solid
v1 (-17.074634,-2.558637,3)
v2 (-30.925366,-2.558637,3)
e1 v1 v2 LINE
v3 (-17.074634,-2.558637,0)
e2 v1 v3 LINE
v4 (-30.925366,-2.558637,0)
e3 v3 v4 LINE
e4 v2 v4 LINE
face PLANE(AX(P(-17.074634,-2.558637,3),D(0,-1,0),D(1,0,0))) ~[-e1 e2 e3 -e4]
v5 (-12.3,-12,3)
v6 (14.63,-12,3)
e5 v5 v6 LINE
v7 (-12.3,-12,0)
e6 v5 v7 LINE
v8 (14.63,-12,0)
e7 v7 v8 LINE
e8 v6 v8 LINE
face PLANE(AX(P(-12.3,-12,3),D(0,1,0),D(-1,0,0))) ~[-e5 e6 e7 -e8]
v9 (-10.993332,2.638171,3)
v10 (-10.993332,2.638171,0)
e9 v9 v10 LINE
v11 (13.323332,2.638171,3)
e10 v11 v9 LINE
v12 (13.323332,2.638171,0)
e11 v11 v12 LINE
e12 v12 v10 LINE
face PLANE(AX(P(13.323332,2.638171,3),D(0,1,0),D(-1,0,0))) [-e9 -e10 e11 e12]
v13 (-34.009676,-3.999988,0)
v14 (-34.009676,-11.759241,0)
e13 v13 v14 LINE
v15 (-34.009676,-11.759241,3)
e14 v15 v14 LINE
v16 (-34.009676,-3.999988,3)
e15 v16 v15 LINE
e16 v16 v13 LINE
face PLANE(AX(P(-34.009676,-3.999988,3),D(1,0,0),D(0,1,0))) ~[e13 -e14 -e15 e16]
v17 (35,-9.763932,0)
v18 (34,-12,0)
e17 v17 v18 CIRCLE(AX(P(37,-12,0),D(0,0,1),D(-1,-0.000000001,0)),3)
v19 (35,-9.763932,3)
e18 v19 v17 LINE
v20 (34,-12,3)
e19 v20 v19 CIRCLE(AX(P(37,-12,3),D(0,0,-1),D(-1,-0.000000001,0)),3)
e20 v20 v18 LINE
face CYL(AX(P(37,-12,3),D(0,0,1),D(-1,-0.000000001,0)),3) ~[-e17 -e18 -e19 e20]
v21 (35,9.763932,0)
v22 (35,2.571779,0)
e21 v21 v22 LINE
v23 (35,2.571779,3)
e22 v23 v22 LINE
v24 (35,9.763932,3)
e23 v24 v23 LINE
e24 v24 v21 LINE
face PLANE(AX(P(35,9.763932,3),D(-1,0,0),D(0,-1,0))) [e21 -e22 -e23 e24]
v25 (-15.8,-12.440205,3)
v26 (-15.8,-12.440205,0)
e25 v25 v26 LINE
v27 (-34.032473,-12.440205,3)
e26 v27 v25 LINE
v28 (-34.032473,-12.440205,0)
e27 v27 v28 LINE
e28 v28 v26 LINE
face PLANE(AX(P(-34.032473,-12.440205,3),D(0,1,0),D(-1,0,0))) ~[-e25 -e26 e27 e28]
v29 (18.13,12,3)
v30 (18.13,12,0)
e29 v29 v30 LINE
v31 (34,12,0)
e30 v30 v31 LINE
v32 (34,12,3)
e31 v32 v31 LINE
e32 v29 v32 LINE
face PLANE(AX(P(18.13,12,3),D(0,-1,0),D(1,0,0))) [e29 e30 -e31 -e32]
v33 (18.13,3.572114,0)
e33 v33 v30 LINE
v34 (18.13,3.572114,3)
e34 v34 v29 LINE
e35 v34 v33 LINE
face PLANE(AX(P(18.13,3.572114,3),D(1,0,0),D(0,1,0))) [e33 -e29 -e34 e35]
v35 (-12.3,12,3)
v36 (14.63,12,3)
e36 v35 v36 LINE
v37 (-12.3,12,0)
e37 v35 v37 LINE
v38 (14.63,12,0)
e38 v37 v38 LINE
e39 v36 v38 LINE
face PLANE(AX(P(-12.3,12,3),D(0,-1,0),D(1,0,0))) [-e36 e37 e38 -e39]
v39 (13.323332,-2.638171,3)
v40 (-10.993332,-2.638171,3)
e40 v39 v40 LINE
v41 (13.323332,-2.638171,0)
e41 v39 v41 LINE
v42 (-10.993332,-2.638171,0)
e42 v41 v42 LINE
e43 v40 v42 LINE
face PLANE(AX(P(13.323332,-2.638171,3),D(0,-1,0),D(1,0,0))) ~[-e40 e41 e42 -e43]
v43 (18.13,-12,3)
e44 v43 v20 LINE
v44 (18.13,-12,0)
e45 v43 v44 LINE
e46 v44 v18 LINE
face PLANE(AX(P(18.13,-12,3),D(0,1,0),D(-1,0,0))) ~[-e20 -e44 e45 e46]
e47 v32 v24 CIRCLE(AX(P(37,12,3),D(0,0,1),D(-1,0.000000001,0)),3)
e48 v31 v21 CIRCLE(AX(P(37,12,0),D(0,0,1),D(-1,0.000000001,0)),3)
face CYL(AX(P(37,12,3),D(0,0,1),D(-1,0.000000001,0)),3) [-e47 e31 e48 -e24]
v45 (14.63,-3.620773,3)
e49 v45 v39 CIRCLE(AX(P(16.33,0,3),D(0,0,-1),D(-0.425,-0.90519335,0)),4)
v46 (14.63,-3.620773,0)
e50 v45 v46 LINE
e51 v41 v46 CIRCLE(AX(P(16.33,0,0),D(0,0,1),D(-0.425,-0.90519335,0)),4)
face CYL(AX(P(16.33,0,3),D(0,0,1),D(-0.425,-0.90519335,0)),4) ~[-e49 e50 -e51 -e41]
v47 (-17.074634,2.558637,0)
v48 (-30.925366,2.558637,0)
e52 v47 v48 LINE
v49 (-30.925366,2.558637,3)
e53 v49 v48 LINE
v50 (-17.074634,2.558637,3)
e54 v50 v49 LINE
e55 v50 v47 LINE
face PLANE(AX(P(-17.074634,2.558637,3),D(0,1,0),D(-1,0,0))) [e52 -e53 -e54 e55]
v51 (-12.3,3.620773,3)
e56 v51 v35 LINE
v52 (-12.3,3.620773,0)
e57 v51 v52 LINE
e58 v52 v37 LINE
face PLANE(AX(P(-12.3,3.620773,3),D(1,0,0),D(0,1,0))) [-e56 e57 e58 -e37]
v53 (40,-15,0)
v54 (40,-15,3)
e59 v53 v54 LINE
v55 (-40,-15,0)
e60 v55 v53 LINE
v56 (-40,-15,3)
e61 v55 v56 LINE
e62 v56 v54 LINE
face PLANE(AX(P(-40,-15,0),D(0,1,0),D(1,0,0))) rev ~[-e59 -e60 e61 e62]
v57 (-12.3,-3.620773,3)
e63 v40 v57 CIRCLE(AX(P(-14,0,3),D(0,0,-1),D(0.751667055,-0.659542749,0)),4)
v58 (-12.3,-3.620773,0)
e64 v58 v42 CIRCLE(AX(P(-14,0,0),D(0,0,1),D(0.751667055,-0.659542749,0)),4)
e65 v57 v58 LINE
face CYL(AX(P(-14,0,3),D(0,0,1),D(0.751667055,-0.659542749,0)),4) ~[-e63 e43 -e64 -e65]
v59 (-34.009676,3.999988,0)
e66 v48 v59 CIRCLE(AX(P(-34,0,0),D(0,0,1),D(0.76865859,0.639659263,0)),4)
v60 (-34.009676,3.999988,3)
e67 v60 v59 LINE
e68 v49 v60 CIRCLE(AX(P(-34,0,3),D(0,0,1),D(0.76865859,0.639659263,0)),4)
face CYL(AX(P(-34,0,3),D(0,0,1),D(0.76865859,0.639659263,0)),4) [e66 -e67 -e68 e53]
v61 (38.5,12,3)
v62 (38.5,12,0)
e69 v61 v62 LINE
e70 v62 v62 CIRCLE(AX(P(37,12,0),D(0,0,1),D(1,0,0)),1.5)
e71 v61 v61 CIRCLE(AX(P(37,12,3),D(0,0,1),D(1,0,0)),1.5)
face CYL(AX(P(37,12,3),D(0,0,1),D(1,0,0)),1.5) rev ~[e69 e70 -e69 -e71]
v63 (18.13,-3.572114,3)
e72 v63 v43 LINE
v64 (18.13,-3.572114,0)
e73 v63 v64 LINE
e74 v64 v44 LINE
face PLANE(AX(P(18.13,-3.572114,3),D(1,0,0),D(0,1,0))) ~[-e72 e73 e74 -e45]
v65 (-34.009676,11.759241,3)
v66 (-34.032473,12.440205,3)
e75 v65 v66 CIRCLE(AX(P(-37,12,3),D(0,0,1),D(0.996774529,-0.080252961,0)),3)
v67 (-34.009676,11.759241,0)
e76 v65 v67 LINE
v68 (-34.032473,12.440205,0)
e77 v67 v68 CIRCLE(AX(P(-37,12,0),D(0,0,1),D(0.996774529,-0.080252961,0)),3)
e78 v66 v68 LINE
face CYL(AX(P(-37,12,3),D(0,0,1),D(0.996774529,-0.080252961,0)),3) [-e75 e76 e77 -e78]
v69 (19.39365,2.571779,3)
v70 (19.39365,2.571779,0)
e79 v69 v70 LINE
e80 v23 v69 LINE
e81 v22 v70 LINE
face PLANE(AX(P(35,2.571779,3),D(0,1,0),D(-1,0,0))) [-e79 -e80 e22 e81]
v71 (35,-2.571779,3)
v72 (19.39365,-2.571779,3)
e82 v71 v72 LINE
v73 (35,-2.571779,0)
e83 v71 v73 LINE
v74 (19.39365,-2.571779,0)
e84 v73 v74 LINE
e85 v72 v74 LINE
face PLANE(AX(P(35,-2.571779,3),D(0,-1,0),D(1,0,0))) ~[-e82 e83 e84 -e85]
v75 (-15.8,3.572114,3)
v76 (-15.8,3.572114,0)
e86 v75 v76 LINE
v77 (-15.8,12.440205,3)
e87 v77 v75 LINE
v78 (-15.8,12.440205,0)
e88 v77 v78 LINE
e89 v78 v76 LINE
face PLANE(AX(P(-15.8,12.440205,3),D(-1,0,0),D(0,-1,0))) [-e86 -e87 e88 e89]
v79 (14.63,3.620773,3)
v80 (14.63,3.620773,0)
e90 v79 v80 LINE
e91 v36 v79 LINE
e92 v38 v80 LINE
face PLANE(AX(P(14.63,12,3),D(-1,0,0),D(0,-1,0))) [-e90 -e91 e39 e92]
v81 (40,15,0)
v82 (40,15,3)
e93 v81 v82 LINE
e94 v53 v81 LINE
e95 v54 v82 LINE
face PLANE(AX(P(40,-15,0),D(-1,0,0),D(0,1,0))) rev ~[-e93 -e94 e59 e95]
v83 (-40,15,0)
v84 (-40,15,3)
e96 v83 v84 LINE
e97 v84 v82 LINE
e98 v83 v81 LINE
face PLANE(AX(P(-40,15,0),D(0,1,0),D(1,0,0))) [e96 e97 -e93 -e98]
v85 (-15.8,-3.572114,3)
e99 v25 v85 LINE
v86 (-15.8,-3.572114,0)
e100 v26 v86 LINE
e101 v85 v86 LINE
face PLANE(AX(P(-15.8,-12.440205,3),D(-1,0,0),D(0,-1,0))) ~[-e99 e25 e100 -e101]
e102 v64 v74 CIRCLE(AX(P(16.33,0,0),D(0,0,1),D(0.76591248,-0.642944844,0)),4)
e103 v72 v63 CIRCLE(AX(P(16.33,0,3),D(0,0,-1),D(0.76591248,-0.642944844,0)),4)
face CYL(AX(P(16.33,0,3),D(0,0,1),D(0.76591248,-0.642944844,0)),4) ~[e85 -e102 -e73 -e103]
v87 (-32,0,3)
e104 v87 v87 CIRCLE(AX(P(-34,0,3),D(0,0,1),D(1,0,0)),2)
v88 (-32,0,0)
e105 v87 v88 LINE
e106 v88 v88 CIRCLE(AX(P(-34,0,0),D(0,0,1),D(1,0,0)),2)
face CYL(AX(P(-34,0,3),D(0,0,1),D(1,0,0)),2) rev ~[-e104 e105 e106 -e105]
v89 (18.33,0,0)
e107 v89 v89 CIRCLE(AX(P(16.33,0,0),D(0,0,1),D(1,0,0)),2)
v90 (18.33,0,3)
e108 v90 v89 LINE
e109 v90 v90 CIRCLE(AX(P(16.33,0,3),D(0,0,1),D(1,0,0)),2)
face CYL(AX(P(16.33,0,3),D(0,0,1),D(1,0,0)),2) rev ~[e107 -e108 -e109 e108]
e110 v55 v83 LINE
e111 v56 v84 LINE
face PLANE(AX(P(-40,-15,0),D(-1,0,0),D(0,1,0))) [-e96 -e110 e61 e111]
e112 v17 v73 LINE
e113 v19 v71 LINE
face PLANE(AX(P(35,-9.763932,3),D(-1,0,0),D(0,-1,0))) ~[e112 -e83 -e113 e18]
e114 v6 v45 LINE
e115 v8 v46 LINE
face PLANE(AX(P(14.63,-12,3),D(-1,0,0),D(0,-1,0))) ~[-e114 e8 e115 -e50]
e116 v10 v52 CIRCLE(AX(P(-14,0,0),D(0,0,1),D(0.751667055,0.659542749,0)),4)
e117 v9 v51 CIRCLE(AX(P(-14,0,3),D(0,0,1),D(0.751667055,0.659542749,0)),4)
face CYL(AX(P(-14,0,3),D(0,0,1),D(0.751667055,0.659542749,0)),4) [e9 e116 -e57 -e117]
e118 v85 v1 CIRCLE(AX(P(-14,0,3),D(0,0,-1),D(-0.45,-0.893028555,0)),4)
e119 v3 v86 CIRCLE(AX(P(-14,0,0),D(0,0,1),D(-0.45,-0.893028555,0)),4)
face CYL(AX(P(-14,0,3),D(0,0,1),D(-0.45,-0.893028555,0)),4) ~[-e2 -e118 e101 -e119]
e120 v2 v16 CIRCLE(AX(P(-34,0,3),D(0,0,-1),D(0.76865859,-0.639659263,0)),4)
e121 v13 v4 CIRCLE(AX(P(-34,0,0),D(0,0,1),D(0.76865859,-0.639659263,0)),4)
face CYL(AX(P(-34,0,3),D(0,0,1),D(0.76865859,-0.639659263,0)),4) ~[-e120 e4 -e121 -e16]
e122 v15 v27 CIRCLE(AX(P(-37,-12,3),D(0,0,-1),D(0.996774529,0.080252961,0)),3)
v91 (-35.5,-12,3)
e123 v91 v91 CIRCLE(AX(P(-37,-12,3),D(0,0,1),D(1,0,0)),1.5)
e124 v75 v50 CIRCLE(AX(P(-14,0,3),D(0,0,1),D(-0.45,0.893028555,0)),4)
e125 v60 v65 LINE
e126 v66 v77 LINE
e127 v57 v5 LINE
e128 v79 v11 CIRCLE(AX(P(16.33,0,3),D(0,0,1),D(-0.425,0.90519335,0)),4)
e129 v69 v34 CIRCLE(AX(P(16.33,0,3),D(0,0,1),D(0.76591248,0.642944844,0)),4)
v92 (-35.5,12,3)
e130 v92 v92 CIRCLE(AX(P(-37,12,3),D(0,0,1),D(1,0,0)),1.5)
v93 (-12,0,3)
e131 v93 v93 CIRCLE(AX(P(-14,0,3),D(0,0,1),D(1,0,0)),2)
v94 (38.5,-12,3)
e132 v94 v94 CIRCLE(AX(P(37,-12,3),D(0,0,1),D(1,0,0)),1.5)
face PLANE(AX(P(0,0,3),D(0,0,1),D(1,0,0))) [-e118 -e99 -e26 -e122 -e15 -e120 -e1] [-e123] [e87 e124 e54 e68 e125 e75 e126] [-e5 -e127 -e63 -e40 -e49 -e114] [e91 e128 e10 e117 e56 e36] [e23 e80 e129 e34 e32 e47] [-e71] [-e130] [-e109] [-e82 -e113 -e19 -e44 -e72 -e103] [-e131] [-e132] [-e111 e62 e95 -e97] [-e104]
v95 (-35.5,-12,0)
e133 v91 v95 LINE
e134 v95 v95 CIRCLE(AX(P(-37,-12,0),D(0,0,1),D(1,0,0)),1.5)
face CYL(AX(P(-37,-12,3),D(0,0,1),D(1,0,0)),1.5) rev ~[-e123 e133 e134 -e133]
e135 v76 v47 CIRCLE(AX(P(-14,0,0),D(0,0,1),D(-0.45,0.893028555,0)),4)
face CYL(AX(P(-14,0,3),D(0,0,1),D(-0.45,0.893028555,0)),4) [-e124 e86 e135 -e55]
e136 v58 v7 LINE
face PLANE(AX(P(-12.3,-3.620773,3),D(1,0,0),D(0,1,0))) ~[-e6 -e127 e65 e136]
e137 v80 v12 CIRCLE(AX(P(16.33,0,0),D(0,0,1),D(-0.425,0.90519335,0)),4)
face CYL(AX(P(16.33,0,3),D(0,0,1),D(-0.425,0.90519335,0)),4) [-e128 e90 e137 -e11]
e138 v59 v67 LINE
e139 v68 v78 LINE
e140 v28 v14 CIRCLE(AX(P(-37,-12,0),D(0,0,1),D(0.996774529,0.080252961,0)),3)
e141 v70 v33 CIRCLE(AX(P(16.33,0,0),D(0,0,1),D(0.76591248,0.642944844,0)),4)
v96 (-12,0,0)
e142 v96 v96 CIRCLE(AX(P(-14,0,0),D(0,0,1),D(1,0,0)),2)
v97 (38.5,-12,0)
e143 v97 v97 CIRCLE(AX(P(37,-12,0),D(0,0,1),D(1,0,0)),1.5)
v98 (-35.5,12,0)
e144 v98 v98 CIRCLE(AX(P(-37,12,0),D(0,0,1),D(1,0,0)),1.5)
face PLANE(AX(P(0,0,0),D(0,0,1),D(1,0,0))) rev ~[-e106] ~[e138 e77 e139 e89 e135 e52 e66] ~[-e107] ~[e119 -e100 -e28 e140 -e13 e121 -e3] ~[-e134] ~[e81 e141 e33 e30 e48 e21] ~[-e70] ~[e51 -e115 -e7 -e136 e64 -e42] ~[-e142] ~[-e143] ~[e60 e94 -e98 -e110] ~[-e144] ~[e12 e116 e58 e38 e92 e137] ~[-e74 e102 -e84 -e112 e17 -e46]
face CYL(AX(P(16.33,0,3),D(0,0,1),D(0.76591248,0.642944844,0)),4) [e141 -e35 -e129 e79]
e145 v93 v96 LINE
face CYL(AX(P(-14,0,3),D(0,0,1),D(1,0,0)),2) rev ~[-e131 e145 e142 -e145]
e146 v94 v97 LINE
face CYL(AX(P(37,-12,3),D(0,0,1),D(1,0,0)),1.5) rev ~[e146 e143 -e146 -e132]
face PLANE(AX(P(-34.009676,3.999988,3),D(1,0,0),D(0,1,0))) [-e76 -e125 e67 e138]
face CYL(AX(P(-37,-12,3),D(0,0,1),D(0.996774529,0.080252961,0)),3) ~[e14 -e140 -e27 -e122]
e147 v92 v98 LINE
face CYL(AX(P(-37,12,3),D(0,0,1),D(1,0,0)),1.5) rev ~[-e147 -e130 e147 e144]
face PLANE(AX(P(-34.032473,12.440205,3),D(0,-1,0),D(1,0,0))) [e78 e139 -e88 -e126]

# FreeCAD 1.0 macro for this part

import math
import FreeCAD as App
import Part
import Sketcher
from FreeCAD import Vector
Q = App.Units.Quantity


def add_polygon(sketch, points):
    """Adds a closed chain of lines whose ends are joined by coincident constraints."""
    first, n = sketch.GeometryCount, len(points)
    for a, b in zip(points, points[1:] + points[:1]):
        sketch.addGeometry(Part.LineSegment(App.Vector(*a, 0), App.Vector(*b, 0)), False)
    for i in range(n):
        sketch.addConstraint(Sketcher.Constraint("Coincident", first + i, 2, first + (i + 1) % n, 1))

doc = App.newDocument("Part")
body = doc.addObject("PartDesign::Body", "Body")

sketch1 = body.newObject("Sketcher::SketchObject", "Sketch")
sketch1.AttachmentSupport = (doc.getObject("XY_Plane"), [""])
sketch1.MapMode = "FlatFace"
add_polygon(sketch1, [(-40, 15), (-40, -15), (40, -15), (40, 15)])
sketch1.addConstraint([
    Sketcher.Constraint("Vertical", 0),
    Sketcher.Constraint("Horizontal", 1),
    Sketcher.Constraint("Vertical", 2),
    Sketcher.Constraint("Horizontal", 3),
    Sketcher.Constraint("Symmetric", 0, 2, 2, 2, -1, 1),
    Sketcher.Constraint("DistanceX", 1, 1, 1, 2, Q("80 mm")),
    Sketcher.Constraint("DistanceY", 0, 2, 0, 1, Q("30 mm")),
])
pad1 = body.newObject("PartDesign::Pad", "Pad")
pad1.Profile = sketch1
pad1.Length = 3

sketch2 = body.newObject("Sketcher::SketchObject", "Sketch001")
sketch2.AttachmentSupport = (doc.getObject("XY_Plane"), [""])
sketch2.MapMode = "FlatFace"
sketch2.AttachmentOffset = App.Placement(Vector(0, 0, 3), App.Rotation())
sketch2.addGeometry([
    Part.Circle(Vector(37, 12, 0), Vector(0, 0, 1), 1.5),
    Part.Circle(Vector(-37, 12, 0), Vector(0, 0, 1), 1.5),
    Part.Circle(Vector(37, -12, 0), Vector(0, 0, 1), 1.5),
    Part.Circle(Vector(-37, -12, 0), Vector(0, 0, 1), 1.5),
    Part.Circle(Vector(-14, 0, 0), Vector(0, 0, 1), 2),
    Part.Circle(Vector(-34, 0, 0), Vector(0, 0, 1), 2),
    Part.Circle(Vector(16.3, 0, 0), Vector(0, 0, 1), 2),
    Part.LineSegment(Vector(-15.8, 12.4, 0), Vector(-34, 12.4, 0)),
    Part.ArcOfCircle(Part.Circle(Vector(-37, 12, 0), Vector(0, 0, 1), 3), math.radians(-4.6), math.radians(8.44)),
    Part.LineSegment(Vector(-34, 11.8, 0), Vector(-34, 4, 0)),
    Part.ArcOfCircle(Part.Circle(Vector(-34, 0, 0), Vector(0, 0, 1), 4), math.radians(40), math.radians(90)),
    Part.LineSegment(Vector(-30.9, 2.6, 0), Vector(-17.1, 2.6, 0)),
    Part.ArcOfCircle(Part.Circle(Vector(-14, 0, 0), Vector(0, 0, 1), 4), math.radians(117), math.radians(140)),
    Part.LineSegment(Vector(-15.8, 3.6, 0), Vector(-15.8, 12.4, 0)),
    Part.LineSegment(Vector(-11, 2.6, 0), Vector(13.3, 2.6, 0)),
    Part.ArcOfCircle(Part.Circle(Vector(16.3, 0, 0), Vector(0, 0, 1), 4), math.radians(115), math.radians(139)),
    Part.LineSegment(Vector(14.6, 3.6, 0), Vector(14.6, 12, 0)),
    Part.LineSegment(Vector(14.6, 12, 0), Vector(-12.3, 12, 0)),
    Part.LineSegment(Vector(-12.3, 12, 0), Vector(-12.3, 3.6, 0)),
    Part.ArcOfCircle(Part.Circle(Vector(-14, 0, 0), Vector(0, 0, 1), 4), math.radians(41), math.radians(65)),
    Part.LineSegment(Vector(19.4, 2.6, 0), Vector(35, 2.6, 0)),
    Part.LineSegment(Vector(35, 2.6, 0), Vector(35, 9.8, 0)),
    Part.ArcOfCircle(Part.Circle(Vector(37, 12, 0), Vector(0, 0, 1), 3), math.radians(180), math.radians(228)),
    Part.LineSegment(Vector(34, 12, 0), Vector(18.1, 12, 0)),
    Part.LineSegment(Vector(18.1, 12, 0), Vector(18.1, 3.6, 0)),
    Part.ArcOfCircle(Part.Circle(Vector(16.3, 0, 0), Vector(0, 0, 1), 4), math.radians(40), math.radians(63)),
], False)
sketch2.addConstraint([
    Sketcher.Constraint("Coincident", 7, 2, 8, 2),
    Sketcher.Constraint("Coincident", 8, 1, 9, 1),
    Sketcher.Constraint("Coincident", 9, 2, 10, 2),
    Sketcher.Constraint("Coincident", 10, 1, 11, 1),
    Sketcher.Constraint("Coincident", 11, 2, 12, 2),
    Sketcher.Constraint("Coincident", 12, 1, 13, 1),
    Sketcher.Constraint("Coincident", 13, 2, 7, 1),
    Sketcher.Constraint("Coincident", 14, 2, 15, 2),
    Sketcher.Constraint("Coincident", 15, 1, 16, 1),
    Sketcher.Constraint("Coincident", 16, 2, 17, 1),
    Sketcher.Constraint("Coincident", 17, 2, 18, 1),
    Sketcher.Constraint("Coincident", 18, 2, 19, 2),
    Sketcher.Constraint("Coincident", 19, 1, 14, 1),
    Sketcher.Constraint("Coincident", 20, 2, 21, 1),
    Sketcher.Constraint("Coincident", 21, 2, 22, 2),
    Sketcher.Constraint("Coincident", 22, 1, 23, 1),
    Sketcher.Constraint("Coincident", 23, 2, 24, 1),
    Sketcher.Constraint("Coincident", 24, 2, 25, 2),
    Sketcher.Constraint("Coincident", 25, 1, 20, 1),
    Sketcher.Constraint("Horizontal", 7),
    Sketcher.Constraint("Vertical", 9),
    Sketcher.Constraint("Horizontal", 11),
    Sketcher.Constraint("Vertical", 13),
    Sketcher.Constraint("Horizontal", 14),
    Sketcher.Constraint("Vertical", 16),
    Sketcher.Constraint("Horizontal", 17),
    Sketcher.Constraint("Vertical", 18),
    Sketcher.Constraint("Horizontal", 20),
    Sketcher.Constraint("Vertical", 21),
    Sketcher.Constraint("Horizontal", 23),
    Sketcher.Constraint("Vertical", 24),
    Sketcher.Constraint("Coincident", 8, 3, 1, 3),
    Sketcher.Constraint("Coincident", 10, 3, 5, 3),
    Sketcher.Constraint("Coincident", 12, 3, 4, 3),
    Sketcher.Constraint("Coincident", 15, 3, 6, 3),
    Sketcher.Constraint("Coincident", 19, 3, 4, 3),
    Sketcher.Constraint("Coincident", 22, 3, 0, 3),
    Sketcher.Constraint("Coincident", 25, 3, 6, 3),
    Sketcher.Constraint("Equal", 0, 1),
    Sketcher.Constraint("Equal", 1, 2),
    Sketcher.Constraint("Equal", 2, 3),
    Sketcher.Constraint("Equal", 4, 5),
    Sketcher.Constraint("Equal", 5, 6),
    Sketcher.Constraint("Equal", 10, 12),
    Sketcher.Constraint("Equal", 12, 15),
    Sketcher.Constraint("Equal", 15, 19),
    Sketcher.Constraint("Equal", 8, 22),
    Sketcher.Constraint("Equal", 19, 25),
    Sketcher.Constraint("Symmetric", 1, 3, 2, 3, -1, 1),
    Sketcher.Constraint("Symmetric", 0, 3, 3, 3, -1, 1),
    Sketcher.Constraint("Symmetric", 0, 3, 1, 3, -2),
    Sketcher.Constraint("PointOnObject", 4, 3, -1),
    Sketcher.Constraint("PointOnObject", 5, 3, -1),
    Sketcher.Constraint("PointOnObject", 6, 3, -1),
    Sketcher.Constraint("Horizontal", 22, 3, 16, 2),
    Sketcher.Constraint("Horizontal", 15, 1, 18, 2),
    Sketcher.Constraint("Horizontal", 17, 2, 22, 1),
    Sketcher.Constraint("Horizontal", 12, 1, 24, 2),
    Sketcher.Constraint("Diameter", 0, Q("3 mm")),
    Sketcher.Constraint("Diameter", 4, Q("4 mm")),
    Sketcher.Constraint("Radius", 8, Q("3 mm")),
    Sketcher.Constraint("Radius", 10, Q("4 mm")),
    Sketcher.Constraint("DistanceX", -1, 1, 0, 3, Q("37 mm")),
    Sketcher.Constraint("DistanceY", -1, 1, 0, 3, Q("12 mm")),
    Sketcher.Constraint("DistanceX", 4, 3, -1, 1, Q("14 mm")),
    Sketcher.Constraint("DistanceX", 5, 3, -1, 1, Q("34 mm")),
    Sketcher.Constraint("DistanceX", -1, 1, 20, 2, Q("35 mm")),
    Sketcher.Constraint("DistanceX", 17, 2, 17, 1, Q("26.93 mm")),
    Sketcher.Constraint("DistanceX", 23, 2, 23, 1, Q("15.87 mm")),
    Sketcher.Constraint("DistanceX", 12, 1, -1, 1, Q("15.8 mm")),
    Sketcher.Constraint("DistanceX", 11, 1, 11, 2, Q("13.850731 mm")),
    Sketcher.Constraint("DistanceX", 20, 1, 20, 2, Q("15.60635 mm")),
    Sketcher.Constraint("DistanceY", 13, 1, 13, 2, Q("8.868091 mm")),
    Sketcher.Constraint("DistanceX", 14, 1, 14, 2, Q("24.316664 mm")),
    Sketcher.Constraint("DistanceY", 9, 2, 9, 1, Q("7.759253 mm")),
])
pocket1 = body.newObject("PartDesign::Pocket", "Pocket")
pocket1.Profile = sketch2
pocket1.Type = "ThroughAll"
doc.recompute()

mirrored = body.newObject("PartDesign::Mirrored", "Mirrored")
mirrored.Originals = [pocket1]
mirrored.MirrorPlane = (doc.getObject("XZ_Plane"), [""])
body.Tip = mirrored

doc.recompute()
